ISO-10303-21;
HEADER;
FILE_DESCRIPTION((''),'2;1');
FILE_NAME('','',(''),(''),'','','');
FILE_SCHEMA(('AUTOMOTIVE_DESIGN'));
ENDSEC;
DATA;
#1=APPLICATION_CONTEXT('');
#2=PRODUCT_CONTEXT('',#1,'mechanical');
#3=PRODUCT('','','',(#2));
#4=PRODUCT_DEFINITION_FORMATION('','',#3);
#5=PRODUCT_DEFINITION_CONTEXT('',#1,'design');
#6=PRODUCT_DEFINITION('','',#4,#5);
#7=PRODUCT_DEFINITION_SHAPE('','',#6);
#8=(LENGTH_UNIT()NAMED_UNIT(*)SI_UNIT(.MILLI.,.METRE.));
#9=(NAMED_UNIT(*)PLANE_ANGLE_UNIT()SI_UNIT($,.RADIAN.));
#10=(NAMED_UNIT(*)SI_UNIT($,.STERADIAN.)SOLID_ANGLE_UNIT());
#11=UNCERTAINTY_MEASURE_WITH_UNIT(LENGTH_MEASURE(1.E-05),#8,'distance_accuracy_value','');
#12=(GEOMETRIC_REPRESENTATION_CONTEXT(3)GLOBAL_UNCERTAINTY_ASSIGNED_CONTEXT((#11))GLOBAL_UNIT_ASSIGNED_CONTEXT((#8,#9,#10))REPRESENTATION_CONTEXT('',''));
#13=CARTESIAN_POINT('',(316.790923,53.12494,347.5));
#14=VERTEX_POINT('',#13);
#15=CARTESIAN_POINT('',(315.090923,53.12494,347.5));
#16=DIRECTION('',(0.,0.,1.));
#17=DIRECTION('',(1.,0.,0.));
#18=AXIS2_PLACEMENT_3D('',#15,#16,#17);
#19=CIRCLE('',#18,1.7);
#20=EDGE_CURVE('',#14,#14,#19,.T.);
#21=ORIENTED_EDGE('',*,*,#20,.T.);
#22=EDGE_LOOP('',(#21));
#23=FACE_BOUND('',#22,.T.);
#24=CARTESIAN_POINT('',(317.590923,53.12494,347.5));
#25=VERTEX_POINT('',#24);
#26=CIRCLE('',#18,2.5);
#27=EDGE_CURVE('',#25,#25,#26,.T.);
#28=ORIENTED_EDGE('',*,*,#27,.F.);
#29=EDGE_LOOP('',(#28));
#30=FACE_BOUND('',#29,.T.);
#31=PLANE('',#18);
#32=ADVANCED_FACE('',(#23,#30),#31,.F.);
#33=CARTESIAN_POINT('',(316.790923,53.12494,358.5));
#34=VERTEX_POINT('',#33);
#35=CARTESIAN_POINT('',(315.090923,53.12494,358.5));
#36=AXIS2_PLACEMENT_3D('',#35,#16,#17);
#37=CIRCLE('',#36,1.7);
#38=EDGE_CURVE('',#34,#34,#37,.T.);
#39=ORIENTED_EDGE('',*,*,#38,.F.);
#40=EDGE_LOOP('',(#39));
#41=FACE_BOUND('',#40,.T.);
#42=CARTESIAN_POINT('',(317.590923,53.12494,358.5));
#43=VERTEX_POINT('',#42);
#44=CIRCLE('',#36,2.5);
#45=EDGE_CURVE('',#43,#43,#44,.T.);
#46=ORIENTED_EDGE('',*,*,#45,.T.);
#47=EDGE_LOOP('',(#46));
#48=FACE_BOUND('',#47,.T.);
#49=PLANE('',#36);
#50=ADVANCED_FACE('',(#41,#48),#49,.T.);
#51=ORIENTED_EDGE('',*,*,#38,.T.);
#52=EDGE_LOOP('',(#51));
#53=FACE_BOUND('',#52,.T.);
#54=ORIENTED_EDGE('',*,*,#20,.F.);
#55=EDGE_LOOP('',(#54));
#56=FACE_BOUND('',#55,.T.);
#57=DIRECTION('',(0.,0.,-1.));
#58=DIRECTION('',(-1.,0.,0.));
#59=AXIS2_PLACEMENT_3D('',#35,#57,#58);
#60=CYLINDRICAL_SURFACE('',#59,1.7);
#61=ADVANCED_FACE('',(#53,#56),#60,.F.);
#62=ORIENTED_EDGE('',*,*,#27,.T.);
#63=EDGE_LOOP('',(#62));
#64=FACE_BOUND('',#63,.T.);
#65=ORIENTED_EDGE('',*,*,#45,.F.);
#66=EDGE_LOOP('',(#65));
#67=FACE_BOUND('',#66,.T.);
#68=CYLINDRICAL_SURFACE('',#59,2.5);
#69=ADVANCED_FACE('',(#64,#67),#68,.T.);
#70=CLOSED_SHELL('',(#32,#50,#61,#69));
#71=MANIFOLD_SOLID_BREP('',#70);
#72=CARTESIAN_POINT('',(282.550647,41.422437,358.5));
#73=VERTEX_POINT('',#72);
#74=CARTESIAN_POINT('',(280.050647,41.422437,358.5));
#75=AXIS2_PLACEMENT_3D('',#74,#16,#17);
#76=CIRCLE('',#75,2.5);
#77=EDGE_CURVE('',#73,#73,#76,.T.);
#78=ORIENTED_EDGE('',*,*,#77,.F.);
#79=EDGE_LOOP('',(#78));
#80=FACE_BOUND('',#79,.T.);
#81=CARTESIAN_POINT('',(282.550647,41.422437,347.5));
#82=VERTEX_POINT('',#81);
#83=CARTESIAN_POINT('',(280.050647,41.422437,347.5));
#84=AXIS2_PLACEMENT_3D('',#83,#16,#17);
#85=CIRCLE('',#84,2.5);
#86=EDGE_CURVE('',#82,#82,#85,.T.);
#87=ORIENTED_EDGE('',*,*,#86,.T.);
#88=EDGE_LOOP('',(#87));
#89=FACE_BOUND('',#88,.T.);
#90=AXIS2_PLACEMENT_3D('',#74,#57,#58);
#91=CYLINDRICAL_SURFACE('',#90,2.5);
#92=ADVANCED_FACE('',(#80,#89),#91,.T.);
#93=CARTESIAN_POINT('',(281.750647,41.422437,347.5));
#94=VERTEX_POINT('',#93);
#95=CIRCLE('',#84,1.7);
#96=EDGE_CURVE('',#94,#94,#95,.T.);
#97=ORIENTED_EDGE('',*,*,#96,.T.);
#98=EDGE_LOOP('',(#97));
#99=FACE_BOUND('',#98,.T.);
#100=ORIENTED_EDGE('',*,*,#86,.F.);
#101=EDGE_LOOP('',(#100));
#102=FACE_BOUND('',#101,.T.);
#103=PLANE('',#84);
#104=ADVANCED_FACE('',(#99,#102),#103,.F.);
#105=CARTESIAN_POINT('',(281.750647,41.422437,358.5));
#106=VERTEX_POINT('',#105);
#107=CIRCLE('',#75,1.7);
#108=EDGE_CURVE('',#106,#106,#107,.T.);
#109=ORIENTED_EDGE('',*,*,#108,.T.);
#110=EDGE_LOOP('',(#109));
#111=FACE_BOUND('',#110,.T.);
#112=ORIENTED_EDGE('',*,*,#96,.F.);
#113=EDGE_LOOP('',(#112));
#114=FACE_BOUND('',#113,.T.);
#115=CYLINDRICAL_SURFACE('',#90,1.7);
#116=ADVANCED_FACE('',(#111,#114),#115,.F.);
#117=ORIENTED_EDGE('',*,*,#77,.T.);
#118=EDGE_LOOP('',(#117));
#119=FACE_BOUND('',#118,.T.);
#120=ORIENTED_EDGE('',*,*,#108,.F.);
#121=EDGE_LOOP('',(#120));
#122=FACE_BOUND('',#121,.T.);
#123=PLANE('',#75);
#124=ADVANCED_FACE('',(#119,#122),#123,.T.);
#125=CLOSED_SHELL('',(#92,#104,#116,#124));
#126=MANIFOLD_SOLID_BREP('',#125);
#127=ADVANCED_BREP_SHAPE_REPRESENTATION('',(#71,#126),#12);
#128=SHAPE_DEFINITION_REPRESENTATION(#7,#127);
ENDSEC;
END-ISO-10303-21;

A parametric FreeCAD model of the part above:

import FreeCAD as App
import Part
import Sketcher
Q = App.Units.Quantity

doc = App.newDocument("Part")
body = doc.addObject("PartDesign::Body", "Body")

# Sketch on XY plane
sketch1 = body.newObject("Sketcher::SketchObject", "Sketch")
sketch1.AttachmentSupport = (doc.getObject("XY_Plane"), [""])
sketch1.MapMode = "FlatFace"
sketch1.AttachmentOffset = App.Placement(App.Vector(0, 0, 347.5), App.Rotation())
sketch1.addGeometry(Part.Circle(App.Vector(315.1, 53.1, 0), App.Vector(0, 0, 1), 2.5), False)
sketch1.addGeometry(Part.Circle(App.Vector(315.1, 53.1, 0), App.Vector(0, 0, 1), 1.7), False)
sketch1.addConstraint(Sketcher.Constraint("Coincident", 1, 3, 0, 3))
sketch1.addConstraint(Sketcher.Constraint("Diameter", 0, Q("5 mm")))
sketch1.addConstraint(Sketcher.Constraint("Diameter", 1, Q("3.4 mm")))
sketch1.addConstraint(Sketcher.Constraint("DistanceY", -1, 1, 0, 3, Q("53.12494 mm")))
sketch1.addConstraint(Sketcher.Constraint("DistanceX", -1, 1, 0, 3, Q("315.090923 mm")))
pad1 = body.newObject("PartDesign::Pad", "Pad")
pad1.Profile = sketch1
pad1.Length = 11
body2 = doc.addObject("PartDesign::Body", "Body001")

# Sketch on XY plane
sketch2 = body2.newObject("Sketcher::SketchObject", "Sketch001")
sketch2.AttachmentSupport = (doc.getObject("XY_Plane001"), [""])
sketch2.MapMode = "FlatFace"
sketch2.AttachmentOffset = App.Placement(App.Vector(0, 0, 347.5), App.Rotation())
sketch2.addGeometry(Part.Circle(App.Vector(280.1, 41.4, 0), App.Vector(0, 0, 1), 2.5), False)
sketch2.addGeometry(Part.Circle(App.Vector(280.1, 41.4, 0), App.Vector(0, 0, 1), 1.7), False)
sketch2.addConstraint(Sketcher.Constraint("Coincident", 1, 3, 0, 3))
sketch2.addConstraint(Sketcher.Constraint("Diameter", 0, Q("5 mm")))
sketch2.addConstraint(Sketcher.Constraint("Diameter", 1, Q("3.4 mm")))
sketch2.addConstraint(Sketcher.Constraint("DistanceX", -1, 1, 0, 3, Q("280.050647 mm")))
sketch2.addConstraint(Sketcher.Constraint("DistanceY", -1, 1, 0, 3, Q("41.422437 mm")))
pad2 = body2.newObject("PartDesign::Pad", "Pad001")
pad2.Profile = sketch2
pad2.Length = 11

doc.recompute()
